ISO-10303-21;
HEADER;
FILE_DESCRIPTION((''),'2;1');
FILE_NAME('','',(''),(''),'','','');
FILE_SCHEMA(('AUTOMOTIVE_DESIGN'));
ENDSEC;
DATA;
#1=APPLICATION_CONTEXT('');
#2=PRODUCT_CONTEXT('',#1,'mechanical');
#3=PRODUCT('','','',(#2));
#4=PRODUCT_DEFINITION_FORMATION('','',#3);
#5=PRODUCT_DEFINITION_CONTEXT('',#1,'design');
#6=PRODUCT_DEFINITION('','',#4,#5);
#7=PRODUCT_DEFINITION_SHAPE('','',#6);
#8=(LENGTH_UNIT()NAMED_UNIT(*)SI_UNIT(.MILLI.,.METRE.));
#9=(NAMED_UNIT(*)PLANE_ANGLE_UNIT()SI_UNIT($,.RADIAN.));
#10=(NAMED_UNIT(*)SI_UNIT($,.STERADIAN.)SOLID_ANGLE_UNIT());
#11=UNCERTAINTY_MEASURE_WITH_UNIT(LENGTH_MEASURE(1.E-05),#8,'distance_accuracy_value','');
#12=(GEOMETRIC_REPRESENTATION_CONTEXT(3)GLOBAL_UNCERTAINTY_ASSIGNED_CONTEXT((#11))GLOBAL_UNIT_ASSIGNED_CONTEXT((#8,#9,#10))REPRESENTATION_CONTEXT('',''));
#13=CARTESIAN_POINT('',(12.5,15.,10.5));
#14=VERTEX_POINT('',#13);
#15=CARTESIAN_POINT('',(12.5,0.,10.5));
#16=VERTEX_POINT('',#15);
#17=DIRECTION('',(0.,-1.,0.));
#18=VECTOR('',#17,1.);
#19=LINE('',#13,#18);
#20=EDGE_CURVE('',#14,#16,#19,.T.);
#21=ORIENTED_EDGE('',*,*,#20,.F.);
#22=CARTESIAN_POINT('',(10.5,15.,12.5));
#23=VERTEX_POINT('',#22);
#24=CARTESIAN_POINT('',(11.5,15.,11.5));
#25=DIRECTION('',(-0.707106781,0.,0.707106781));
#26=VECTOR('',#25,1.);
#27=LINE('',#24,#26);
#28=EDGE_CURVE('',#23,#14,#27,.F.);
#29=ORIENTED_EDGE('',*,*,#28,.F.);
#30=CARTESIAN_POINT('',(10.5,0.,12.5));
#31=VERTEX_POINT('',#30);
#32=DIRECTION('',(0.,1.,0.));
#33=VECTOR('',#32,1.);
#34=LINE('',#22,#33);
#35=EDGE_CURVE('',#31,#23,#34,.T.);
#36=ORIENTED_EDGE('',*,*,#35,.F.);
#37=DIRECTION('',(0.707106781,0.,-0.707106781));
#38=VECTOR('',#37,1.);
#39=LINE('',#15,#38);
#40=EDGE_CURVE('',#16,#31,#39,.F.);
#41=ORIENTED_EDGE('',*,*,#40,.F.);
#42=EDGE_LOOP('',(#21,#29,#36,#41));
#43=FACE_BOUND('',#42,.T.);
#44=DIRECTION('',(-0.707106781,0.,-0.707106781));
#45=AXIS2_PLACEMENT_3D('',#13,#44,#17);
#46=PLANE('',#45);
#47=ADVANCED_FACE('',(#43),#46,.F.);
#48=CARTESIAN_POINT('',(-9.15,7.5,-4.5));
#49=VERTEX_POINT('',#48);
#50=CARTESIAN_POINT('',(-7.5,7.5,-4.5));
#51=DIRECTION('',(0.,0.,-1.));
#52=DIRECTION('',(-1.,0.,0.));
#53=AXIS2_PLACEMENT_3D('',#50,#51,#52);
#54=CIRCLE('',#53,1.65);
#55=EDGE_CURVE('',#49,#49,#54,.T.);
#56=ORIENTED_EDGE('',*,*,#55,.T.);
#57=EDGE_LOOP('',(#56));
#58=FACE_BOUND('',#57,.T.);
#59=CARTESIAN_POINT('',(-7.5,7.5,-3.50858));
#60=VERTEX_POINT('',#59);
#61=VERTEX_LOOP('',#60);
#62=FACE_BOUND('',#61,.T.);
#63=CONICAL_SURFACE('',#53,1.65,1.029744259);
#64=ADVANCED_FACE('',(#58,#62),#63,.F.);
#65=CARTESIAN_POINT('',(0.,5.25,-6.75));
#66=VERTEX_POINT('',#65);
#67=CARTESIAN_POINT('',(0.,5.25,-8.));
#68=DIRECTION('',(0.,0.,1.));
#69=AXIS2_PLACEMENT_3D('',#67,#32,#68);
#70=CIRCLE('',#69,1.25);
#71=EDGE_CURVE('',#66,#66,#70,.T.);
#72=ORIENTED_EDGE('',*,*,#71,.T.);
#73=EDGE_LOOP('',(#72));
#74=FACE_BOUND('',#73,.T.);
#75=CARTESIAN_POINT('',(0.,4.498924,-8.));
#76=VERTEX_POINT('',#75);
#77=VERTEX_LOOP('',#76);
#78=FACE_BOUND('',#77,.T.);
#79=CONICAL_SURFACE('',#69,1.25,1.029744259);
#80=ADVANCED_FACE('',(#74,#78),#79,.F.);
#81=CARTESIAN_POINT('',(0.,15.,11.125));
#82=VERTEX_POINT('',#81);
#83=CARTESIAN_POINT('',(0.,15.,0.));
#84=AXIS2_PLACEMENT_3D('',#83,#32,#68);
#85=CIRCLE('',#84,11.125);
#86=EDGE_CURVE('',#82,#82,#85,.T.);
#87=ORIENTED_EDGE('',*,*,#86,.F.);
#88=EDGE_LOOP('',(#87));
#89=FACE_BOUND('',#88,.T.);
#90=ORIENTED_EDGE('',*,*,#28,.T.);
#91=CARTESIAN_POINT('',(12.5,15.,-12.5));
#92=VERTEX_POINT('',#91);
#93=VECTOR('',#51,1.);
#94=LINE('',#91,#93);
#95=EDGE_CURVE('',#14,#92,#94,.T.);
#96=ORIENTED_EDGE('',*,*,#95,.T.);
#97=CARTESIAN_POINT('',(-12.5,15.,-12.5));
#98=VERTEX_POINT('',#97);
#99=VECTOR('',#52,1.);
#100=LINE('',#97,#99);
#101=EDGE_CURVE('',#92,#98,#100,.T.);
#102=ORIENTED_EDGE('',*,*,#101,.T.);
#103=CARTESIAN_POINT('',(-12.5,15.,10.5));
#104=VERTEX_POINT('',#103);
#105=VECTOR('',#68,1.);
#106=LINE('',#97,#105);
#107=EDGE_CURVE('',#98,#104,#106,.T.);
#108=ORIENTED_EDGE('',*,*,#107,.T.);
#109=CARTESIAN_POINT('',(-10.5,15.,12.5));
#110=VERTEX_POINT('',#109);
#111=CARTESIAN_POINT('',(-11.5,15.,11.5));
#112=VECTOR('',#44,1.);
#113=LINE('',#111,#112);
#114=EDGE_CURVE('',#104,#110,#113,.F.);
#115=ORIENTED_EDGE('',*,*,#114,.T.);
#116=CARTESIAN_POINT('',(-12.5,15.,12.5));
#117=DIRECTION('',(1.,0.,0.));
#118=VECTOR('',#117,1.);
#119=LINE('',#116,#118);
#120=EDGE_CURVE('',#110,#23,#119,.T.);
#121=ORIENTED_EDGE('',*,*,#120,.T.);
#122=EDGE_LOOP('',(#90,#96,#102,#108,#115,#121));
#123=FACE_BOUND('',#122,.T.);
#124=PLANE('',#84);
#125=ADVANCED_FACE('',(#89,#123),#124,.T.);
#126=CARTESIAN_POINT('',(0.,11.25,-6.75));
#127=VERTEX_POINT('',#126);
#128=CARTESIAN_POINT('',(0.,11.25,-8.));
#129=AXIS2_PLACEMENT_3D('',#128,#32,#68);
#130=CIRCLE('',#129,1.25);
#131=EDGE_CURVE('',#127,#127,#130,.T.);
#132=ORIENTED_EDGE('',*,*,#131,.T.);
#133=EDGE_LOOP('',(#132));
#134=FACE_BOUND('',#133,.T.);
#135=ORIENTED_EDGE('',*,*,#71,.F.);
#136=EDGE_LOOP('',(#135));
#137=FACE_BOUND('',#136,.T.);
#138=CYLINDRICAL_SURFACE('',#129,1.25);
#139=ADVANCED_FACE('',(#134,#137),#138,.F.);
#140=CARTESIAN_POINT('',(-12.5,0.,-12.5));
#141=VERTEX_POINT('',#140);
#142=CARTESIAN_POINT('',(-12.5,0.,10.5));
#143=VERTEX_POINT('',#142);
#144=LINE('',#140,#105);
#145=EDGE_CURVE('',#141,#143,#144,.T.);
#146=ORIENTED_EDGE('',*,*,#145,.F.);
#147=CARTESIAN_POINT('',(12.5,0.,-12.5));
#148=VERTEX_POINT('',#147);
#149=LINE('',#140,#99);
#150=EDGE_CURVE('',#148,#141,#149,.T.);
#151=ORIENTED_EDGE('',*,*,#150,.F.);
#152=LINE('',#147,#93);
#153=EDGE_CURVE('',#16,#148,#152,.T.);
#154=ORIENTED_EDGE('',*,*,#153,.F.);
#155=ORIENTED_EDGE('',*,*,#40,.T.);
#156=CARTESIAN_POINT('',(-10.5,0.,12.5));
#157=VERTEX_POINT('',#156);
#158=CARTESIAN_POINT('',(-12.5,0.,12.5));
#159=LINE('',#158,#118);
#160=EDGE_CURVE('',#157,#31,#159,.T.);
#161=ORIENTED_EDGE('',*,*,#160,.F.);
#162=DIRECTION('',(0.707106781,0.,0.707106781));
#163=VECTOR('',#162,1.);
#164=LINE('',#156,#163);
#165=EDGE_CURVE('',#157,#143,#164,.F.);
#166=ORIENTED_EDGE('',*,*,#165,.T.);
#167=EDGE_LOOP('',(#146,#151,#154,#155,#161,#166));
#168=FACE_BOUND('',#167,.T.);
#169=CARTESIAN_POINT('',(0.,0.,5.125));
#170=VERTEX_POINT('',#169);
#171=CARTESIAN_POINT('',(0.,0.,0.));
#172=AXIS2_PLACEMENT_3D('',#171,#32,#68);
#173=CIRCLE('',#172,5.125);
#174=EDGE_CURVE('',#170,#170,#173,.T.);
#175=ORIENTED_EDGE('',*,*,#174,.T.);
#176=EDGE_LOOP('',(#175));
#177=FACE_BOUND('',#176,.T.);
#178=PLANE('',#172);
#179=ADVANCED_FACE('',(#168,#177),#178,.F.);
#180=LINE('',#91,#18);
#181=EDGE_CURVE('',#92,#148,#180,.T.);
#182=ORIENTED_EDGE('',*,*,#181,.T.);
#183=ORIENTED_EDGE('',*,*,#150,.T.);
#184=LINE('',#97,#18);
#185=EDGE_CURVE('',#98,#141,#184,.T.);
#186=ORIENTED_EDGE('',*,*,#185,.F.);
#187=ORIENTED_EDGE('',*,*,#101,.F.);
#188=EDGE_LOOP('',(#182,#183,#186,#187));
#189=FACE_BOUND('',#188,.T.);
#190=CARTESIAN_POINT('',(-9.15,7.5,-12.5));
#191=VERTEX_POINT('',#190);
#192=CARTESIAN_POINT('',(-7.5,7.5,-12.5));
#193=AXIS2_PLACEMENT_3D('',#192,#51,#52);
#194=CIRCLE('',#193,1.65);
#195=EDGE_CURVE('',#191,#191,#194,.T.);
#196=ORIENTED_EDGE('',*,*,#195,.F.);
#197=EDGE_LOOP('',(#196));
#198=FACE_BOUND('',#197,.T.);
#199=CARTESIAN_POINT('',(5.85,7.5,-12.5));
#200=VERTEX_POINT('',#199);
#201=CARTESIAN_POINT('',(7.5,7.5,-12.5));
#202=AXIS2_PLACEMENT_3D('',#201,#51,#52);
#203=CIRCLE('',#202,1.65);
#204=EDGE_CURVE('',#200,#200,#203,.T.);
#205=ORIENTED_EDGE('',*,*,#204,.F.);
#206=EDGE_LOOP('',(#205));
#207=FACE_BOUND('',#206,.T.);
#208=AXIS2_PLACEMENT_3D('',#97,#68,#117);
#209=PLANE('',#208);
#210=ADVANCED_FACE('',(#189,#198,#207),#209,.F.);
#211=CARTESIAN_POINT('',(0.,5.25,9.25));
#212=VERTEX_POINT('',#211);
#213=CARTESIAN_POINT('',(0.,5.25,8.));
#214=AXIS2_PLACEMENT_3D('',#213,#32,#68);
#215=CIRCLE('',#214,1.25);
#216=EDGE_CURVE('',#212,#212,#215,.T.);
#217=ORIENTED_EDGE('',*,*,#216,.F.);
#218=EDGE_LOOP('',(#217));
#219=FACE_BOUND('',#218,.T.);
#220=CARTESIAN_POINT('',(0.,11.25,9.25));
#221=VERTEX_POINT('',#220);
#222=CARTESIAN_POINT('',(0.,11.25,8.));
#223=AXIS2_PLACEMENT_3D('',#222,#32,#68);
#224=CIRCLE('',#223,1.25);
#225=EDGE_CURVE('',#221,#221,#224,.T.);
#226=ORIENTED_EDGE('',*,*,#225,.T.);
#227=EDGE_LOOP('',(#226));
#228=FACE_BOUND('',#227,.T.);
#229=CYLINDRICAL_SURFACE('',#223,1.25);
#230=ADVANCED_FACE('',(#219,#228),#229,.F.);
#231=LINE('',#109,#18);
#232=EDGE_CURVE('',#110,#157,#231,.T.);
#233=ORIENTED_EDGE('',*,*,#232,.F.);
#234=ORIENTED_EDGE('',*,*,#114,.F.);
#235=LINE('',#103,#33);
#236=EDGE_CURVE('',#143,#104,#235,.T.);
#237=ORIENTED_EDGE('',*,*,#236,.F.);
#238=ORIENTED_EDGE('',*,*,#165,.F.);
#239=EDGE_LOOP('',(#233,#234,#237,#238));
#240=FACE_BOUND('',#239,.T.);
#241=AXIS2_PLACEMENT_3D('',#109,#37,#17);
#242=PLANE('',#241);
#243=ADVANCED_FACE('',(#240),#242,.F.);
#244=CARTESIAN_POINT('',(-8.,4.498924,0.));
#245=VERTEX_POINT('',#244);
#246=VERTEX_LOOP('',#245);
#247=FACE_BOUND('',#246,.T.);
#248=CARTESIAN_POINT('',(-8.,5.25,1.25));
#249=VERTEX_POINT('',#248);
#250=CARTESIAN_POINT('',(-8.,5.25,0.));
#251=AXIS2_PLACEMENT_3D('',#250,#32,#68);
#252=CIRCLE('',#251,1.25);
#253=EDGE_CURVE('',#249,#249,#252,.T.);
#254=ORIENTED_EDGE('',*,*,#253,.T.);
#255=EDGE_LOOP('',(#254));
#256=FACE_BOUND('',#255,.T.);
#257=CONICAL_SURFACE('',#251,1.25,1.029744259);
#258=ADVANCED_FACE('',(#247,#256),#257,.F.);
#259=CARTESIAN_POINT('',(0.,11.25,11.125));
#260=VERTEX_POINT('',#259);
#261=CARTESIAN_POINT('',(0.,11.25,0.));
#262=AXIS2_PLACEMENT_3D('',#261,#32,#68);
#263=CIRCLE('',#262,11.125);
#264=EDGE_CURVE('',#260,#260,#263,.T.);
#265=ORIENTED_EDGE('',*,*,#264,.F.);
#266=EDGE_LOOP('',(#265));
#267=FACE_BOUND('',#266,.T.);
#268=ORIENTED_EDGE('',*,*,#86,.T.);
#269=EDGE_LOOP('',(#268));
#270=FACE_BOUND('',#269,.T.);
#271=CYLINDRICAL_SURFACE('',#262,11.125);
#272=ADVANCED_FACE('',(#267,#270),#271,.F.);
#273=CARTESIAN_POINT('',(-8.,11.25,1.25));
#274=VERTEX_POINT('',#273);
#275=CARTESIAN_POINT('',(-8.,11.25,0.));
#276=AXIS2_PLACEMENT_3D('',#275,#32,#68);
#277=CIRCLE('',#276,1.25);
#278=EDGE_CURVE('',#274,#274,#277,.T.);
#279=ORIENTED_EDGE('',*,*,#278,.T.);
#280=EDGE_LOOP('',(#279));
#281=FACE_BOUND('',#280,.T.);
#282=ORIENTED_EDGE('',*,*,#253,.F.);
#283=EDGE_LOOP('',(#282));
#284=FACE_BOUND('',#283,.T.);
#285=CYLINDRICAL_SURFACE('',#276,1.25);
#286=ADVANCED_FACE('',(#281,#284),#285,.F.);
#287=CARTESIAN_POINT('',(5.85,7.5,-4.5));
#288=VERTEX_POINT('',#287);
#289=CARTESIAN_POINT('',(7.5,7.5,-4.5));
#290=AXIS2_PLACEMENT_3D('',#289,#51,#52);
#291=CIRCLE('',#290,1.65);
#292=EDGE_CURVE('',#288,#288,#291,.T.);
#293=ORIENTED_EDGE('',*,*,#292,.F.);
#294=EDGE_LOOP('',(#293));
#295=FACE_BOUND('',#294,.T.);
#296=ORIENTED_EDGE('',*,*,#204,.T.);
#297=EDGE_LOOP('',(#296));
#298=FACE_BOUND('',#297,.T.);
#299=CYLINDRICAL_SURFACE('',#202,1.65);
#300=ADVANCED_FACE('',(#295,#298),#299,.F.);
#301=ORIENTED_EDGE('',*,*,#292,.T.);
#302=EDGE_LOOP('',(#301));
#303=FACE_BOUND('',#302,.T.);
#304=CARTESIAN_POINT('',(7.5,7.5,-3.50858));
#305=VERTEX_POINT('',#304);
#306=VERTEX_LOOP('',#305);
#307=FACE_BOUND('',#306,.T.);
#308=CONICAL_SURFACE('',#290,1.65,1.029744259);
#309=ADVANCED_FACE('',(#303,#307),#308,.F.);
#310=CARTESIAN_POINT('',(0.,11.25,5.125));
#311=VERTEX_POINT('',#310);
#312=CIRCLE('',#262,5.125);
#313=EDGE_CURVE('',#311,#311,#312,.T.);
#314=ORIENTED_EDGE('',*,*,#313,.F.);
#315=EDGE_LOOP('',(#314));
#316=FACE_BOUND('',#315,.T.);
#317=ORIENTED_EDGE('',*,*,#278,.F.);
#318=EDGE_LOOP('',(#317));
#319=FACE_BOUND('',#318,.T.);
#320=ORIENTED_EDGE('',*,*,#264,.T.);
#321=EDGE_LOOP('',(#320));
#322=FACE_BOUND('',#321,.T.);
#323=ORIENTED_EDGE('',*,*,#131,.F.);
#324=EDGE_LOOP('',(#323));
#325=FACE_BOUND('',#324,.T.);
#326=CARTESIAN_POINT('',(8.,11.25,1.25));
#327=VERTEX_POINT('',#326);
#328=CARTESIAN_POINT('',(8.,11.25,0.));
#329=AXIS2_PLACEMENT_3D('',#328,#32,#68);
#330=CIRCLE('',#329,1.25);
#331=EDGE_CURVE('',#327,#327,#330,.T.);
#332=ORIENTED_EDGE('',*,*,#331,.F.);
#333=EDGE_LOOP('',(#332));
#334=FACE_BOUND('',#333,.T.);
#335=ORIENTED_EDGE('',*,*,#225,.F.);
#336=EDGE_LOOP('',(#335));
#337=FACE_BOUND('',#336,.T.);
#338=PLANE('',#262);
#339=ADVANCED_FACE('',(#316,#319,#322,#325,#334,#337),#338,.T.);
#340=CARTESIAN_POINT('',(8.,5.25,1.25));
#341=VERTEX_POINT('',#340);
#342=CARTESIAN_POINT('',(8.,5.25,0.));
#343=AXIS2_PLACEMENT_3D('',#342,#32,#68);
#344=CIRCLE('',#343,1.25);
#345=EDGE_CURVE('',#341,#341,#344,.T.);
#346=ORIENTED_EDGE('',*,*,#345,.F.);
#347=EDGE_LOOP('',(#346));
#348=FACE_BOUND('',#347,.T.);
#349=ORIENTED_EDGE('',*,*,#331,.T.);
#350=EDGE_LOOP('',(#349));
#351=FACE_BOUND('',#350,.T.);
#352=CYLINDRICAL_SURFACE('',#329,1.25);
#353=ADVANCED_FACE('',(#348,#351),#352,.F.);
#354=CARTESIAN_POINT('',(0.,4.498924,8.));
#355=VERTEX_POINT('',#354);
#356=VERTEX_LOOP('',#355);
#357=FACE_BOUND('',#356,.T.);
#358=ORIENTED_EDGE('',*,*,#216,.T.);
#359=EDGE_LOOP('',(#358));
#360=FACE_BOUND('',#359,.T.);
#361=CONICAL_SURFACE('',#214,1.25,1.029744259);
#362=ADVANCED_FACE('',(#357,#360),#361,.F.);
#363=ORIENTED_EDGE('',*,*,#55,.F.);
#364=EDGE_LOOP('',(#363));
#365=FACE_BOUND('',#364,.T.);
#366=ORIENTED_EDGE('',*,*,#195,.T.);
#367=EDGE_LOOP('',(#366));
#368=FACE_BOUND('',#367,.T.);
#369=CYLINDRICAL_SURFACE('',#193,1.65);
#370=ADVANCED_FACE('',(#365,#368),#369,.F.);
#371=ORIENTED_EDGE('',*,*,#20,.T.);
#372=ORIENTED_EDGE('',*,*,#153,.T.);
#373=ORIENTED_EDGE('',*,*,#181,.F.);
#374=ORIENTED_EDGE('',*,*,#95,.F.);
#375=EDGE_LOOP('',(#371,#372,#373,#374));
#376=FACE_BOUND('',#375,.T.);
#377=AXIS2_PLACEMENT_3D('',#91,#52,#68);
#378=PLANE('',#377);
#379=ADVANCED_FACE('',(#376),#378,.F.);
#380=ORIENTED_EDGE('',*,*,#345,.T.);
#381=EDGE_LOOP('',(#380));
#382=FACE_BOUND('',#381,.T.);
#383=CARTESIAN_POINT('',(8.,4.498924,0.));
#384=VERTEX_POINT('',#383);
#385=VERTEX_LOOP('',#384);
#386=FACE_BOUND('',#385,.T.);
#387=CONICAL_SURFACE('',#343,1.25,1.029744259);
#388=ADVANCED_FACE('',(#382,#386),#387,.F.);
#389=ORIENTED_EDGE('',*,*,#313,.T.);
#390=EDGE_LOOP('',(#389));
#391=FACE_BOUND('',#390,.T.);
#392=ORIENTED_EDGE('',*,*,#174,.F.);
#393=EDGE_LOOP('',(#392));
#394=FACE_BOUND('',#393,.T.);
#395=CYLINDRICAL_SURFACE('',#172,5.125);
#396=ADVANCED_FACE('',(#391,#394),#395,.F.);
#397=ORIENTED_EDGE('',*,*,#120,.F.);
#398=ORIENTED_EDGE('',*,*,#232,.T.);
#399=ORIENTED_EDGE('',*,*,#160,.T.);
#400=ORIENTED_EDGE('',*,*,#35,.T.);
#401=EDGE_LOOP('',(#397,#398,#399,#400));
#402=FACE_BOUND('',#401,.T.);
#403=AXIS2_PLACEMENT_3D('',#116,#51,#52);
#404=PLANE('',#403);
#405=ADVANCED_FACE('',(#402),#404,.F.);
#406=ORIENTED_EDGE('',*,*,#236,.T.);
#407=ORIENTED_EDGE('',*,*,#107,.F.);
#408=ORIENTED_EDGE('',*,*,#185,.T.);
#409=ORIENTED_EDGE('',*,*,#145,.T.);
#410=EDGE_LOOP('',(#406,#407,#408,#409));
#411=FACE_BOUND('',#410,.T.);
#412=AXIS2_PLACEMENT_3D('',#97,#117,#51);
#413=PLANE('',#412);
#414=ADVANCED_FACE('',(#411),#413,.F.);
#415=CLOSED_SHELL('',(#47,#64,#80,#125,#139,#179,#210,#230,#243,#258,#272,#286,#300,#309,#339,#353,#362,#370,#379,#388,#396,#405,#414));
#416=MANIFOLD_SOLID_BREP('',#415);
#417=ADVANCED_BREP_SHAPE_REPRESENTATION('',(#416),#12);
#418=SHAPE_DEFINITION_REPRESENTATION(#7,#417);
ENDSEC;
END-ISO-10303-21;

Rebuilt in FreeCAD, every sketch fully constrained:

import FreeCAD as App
import Part
import Sketcher

V = App.Vector
Q = App.Units.Quantity


def edges_at(feature, points):
    """Names of the edges that pass closest to the given points."""
    edges = feature.Shape.Edges
    near = lambda p: min(range(len(edges)), key=lambda i: edges[i].distToShape(Part.Vertex(*p))[0])
    return sorted({f"Edge{near(p) + 1}" for p in points})


def add_polygon(sketch, points):
    """Adds a closed chain of lines whose ends are joined by coincident constraints."""
    first, n = sketch.GeometryCount, len(points)
    for a, b in zip(points, points[1:] + points[:1]):
        sketch.addGeometry(Part.LineSegment(App.Vector(*a, 0), App.Vector(*b, 0)), False)
    for i in range(n):
        sketch.addConstraint(Sketcher.Constraint("Coincident", first + i, 2, first + (i + 1) % n, 1))

doc = App.newDocument("Part")
params = doc.addObject("Spreadsheet::Sheet", "Params")
for row, (alias, value) in enumerate([
    ("sketch1_width", "25 mm"),
    ("pad1_length", "15 mm"),
    ("sketch2_diameter", "22.25 mm"),
    ("pocket1_length", "3.75 mm"),
    ("sketch3_diameter", "10.25 mm"),
    ("sketch4_diameter", "2.5 mm"),
    ("hole_diameter", "2.5 mm"),
    ("hole_depth", "6 mm"),
    ("sketch5_diameter", "3.3 mm"),
    ("hole2_diameter", "3.3 mm"),
    ("hole2_depth", "8 mm"),
    ("chamfer_size", "2 mm"),
], start=1):
    params.set(f"A{row}", alias)
    params.set(f"B{row}", "=" + value)
    params.setAlias(f"B{row}", alias)

body = doc.addObject("PartDesign::Body", "Body")

# Sketch on XZ plane
sketch1 = doc.addObject("Sketcher::SketchObject", "Sketch")
body.addObject(sketch1)
sketch1.AttachmentSupport = (doc.XZ_Plane, [""])
sketch1.MapMode = "FlatFace"
add_polygon(sketch1, [(-12, -12), (-12, 12), (12, 12), (12, -12)])  # lines 0-3
sketch1.addConstraint(Sketcher.Constraint("Vertical", 0))
sketch1.addConstraint(Sketcher.Constraint("Horizontal", 1))
sketch1.addConstraint(Sketcher.Constraint("Vertical", 2))
sketch1.addConstraint(Sketcher.Constraint("Horizontal", 3))
sketch1.addConstraint(Sketcher.Constraint("Symmetric", 0, 2, 2, 2, -1, 1))
sketch1.addConstraint(Sketcher.Constraint("Equal", 3, 0))
sketch1.addConstraint(Sketcher.Constraint("DistanceX", 1, 1, 1, 2, Q("25 mm")))
sketch1.setExpression("Constraints[10]", "Params.sketch1_width")
pad1 = doc.addObject("PartDesign::Pad", "Pad")
body.addObject(pad1)
pad1.Profile = sketch1
pad1.setExpression("Length", "Params.pad1_length")
pad1.Reversed = True

# Sketch on XZ plane
sketch2 = doc.addObject("Sketcher::SketchObject", "Sketch001")
body.addObject(sketch2)
sketch2.AttachmentSupport = (doc.XZ_Plane, [""])
sketch2.MapMode = "FlatFace"
sketch2.AttachmentOffset = App.Placement(V(0, 0, -15), App.Rotation())
sketch2.addGeometry(Part.Circle(V(0, 0, 0), V(0, 0, 1), 11), False)
sketch2.addConstraint(Sketcher.Constraint("Coincident", 0, 3, -1, 1))
sketch2.addConstraint(Sketcher.Constraint("Diameter", 0, Q("22.25 mm")))
sketch2.setExpression("Constraints[1]", "Params.sketch2_diameter")
pocket1 = doc.addObject("PartDesign::Pocket", "Pocket")
body.addObject(pocket1)
pocket1.Profile = sketch2
pocket1.setExpression("Length", "Params.pocket1_length")
pocket1.Reversed = True

# Sketch on XZ plane
sketch3 = doc.addObject("Sketcher::SketchObject", "Sketch002")
body.addObject(sketch3)
sketch3.AttachmentSupport = (doc.XZ_Plane, [""])
sketch3.MapMode = "FlatFace"
sketch3.AttachmentOffset = App.Placement(V(0, 0, -11.25), App.Rotation())
sketch3.addGeometry(Part.Circle(V(0, 0, 0), V(0, 0, 1), 5), False)
sketch3.addConstraint(Sketcher.Constraint("Coincident", 0, 3, -1, 1))
sketch3.addConstraint(Sketcher.Constraint("Diameter", 0, Q("10.25 mm")))
sketch3.setExpression("Constraints[1]", "Params.sketch3_diameter")
pocket2 = doc.addObject("PartDesign::Pocket", "Pocket001")
body.addObject(pocket2)
pocket2.Profile = sketch3
pocket2.Type = "ThroughAll"
pocket2.Reversed = True

# Sketch on XZ plane
sketch4 = doc.addObject("Sketcher::SketchObject", "Sketch003")
body.addObject(sketch4)
sketch4.AttachmentSupport = (doc.XZ_Plane, [""])
sketch4.MapMode = "FlatFace"
sketch4.AttachmentOffset = App.Placement(V(0, 0, -11.25), App.Rotation())
sketch4.addGeometry(Part.Circle(V(-8, 0, 0), V(0, 0, 1), 1.2), False)
sketch4.addGeometry(Part.Circle(V(8, 0, 0), V(0, 0, 1), 1.2), False)
sketch4.addGeometry(Part.Circle(V(0, -8, 0), V(0, 0, 1), 1.2), False)
sketch4.addGeometry(Part.Circle(V(0, 8, 0), V(0, 0, 1), 1.2), False)
sketch4.addConstraint(Sketcher.Constraint("Equal", 0, 1))
sketch4.addConstraint(Sketcher.Constraint("Equal", 1, 2))
sketch4.addConstraint(Sketcher.Constraint("Equal", 2, 3))
sketch4.addConstraint(Sketcher.Constraint("Symmetric", 0, 3, 1, 3, -1, 1))
sketch4.addConstraint(Sketcher.Constraint("Symmetric", 2, 3, 3, 3, -1, 1))
sketch4.addConstraint(Sketcher.Constraint("PointOnObject", 0, 3, -1))
sketch4.addConstraint(Sketcher.Constraint("PointOnObject", 2, 3, -2))
sketch4.addConstraint(Sketcher.Constraint("Diameter", 0, Q("2.5 mm")))
sketch4.addConstraint(Sketcher.Constraint("DistanceX", 0, 3, -1, 1, Q("8 mm")))
sketch4.addConstraint(Sketcher.Constraint("DistanceY", 2, 3, -1, 1, Q("8 mm")))
sketch4.setExpression("Constraints[7]", "Params.sketch4_diameter")
doc.recompute()
hole = doc.addObject("PartDesign::Hole", "Hole")
body.addObject(hole)
hole.Profile = sketch4
hole.ThreadType = "None"
hole.setExpression("Diameter", "Params.hole_diameter")
hole.DepthType = "Dimension"
hole.setExpression("Depth", "Params.hole_depth")
hole.DrillPoint = "Angled"
hole.DrillPointAngle = 118
hole.Reversed = True

# Sketch on XY plane
sketch5 = doc.addObject("Sketcher::SketchObject", "Sketch004")
body.addObject(sketch5)
sketch5.AttachmentSupport = (doc.XY_Plane, [""])
sketch5.MapMode = "FlatFace"
sketch5.AttachmentOffset = App.Placement(V(0, 0, -12.5), App.Rotation())
sketch5.addGeometry(Part.Circle(V(7.5, 7.5, 0), V(0, 0, 1), 1.6), False)
sketch5.addGeometry(Part.Circle(V(-7.5, 7.5, 0), V(0, 0, 1), 1.6), False)
sketch5.addConstraint(Sketcher.Constraint("Equal", 0, 1))
sketch5.addConstraint(Sketcher.Constraint("Symmetric", 0, 3, 1, 3, -2))
sketch5.addConstraint(Sketcher.Constraint("Diameter", 0, Q("3.3 mm")))
sketch5.addConstraint(Sketcher.Constraint("DistanceX", 1, 3, 0, 3, Q("15 mm")))
sketch5.addConstraint(Sketcher.Constraint("DistanceY", -1, 1, 0, 3, Q("7.5 mm")))
sketch5.setExpression("Constraints[2]", "Params.sketch5_diameter")
doc.recompute()
hole2 = doc.addObject("PartDesign::Hole", "Hole001")
body.addObject(hole2)
hole2.Profile = sketch5
hole2.ThreadType = "None"
hole2.setExpression("Diameter", "Params.hole2_diameter")
hole2.DepthType = "Dimension"
hole2.setExpression("Depth", "Params.hole2_depth")
hole2.DrillPoint = "Angled"
hole2.DrillPointAngle = 118
hole2.Reversed = True
doc.recompute()

chamfer = doc.addObject("PartDesign::Chamfer", "Chamfer")
body.addObject(chamfer)
chamfer.Base = (hole2, edges_at(hole2, [(12.5, 7.5, 12.5), (-12.5, 7.5, 12.5)]))
chamfer.setExpression("Size", "Params.chamfer_size")

doc.recompute()
